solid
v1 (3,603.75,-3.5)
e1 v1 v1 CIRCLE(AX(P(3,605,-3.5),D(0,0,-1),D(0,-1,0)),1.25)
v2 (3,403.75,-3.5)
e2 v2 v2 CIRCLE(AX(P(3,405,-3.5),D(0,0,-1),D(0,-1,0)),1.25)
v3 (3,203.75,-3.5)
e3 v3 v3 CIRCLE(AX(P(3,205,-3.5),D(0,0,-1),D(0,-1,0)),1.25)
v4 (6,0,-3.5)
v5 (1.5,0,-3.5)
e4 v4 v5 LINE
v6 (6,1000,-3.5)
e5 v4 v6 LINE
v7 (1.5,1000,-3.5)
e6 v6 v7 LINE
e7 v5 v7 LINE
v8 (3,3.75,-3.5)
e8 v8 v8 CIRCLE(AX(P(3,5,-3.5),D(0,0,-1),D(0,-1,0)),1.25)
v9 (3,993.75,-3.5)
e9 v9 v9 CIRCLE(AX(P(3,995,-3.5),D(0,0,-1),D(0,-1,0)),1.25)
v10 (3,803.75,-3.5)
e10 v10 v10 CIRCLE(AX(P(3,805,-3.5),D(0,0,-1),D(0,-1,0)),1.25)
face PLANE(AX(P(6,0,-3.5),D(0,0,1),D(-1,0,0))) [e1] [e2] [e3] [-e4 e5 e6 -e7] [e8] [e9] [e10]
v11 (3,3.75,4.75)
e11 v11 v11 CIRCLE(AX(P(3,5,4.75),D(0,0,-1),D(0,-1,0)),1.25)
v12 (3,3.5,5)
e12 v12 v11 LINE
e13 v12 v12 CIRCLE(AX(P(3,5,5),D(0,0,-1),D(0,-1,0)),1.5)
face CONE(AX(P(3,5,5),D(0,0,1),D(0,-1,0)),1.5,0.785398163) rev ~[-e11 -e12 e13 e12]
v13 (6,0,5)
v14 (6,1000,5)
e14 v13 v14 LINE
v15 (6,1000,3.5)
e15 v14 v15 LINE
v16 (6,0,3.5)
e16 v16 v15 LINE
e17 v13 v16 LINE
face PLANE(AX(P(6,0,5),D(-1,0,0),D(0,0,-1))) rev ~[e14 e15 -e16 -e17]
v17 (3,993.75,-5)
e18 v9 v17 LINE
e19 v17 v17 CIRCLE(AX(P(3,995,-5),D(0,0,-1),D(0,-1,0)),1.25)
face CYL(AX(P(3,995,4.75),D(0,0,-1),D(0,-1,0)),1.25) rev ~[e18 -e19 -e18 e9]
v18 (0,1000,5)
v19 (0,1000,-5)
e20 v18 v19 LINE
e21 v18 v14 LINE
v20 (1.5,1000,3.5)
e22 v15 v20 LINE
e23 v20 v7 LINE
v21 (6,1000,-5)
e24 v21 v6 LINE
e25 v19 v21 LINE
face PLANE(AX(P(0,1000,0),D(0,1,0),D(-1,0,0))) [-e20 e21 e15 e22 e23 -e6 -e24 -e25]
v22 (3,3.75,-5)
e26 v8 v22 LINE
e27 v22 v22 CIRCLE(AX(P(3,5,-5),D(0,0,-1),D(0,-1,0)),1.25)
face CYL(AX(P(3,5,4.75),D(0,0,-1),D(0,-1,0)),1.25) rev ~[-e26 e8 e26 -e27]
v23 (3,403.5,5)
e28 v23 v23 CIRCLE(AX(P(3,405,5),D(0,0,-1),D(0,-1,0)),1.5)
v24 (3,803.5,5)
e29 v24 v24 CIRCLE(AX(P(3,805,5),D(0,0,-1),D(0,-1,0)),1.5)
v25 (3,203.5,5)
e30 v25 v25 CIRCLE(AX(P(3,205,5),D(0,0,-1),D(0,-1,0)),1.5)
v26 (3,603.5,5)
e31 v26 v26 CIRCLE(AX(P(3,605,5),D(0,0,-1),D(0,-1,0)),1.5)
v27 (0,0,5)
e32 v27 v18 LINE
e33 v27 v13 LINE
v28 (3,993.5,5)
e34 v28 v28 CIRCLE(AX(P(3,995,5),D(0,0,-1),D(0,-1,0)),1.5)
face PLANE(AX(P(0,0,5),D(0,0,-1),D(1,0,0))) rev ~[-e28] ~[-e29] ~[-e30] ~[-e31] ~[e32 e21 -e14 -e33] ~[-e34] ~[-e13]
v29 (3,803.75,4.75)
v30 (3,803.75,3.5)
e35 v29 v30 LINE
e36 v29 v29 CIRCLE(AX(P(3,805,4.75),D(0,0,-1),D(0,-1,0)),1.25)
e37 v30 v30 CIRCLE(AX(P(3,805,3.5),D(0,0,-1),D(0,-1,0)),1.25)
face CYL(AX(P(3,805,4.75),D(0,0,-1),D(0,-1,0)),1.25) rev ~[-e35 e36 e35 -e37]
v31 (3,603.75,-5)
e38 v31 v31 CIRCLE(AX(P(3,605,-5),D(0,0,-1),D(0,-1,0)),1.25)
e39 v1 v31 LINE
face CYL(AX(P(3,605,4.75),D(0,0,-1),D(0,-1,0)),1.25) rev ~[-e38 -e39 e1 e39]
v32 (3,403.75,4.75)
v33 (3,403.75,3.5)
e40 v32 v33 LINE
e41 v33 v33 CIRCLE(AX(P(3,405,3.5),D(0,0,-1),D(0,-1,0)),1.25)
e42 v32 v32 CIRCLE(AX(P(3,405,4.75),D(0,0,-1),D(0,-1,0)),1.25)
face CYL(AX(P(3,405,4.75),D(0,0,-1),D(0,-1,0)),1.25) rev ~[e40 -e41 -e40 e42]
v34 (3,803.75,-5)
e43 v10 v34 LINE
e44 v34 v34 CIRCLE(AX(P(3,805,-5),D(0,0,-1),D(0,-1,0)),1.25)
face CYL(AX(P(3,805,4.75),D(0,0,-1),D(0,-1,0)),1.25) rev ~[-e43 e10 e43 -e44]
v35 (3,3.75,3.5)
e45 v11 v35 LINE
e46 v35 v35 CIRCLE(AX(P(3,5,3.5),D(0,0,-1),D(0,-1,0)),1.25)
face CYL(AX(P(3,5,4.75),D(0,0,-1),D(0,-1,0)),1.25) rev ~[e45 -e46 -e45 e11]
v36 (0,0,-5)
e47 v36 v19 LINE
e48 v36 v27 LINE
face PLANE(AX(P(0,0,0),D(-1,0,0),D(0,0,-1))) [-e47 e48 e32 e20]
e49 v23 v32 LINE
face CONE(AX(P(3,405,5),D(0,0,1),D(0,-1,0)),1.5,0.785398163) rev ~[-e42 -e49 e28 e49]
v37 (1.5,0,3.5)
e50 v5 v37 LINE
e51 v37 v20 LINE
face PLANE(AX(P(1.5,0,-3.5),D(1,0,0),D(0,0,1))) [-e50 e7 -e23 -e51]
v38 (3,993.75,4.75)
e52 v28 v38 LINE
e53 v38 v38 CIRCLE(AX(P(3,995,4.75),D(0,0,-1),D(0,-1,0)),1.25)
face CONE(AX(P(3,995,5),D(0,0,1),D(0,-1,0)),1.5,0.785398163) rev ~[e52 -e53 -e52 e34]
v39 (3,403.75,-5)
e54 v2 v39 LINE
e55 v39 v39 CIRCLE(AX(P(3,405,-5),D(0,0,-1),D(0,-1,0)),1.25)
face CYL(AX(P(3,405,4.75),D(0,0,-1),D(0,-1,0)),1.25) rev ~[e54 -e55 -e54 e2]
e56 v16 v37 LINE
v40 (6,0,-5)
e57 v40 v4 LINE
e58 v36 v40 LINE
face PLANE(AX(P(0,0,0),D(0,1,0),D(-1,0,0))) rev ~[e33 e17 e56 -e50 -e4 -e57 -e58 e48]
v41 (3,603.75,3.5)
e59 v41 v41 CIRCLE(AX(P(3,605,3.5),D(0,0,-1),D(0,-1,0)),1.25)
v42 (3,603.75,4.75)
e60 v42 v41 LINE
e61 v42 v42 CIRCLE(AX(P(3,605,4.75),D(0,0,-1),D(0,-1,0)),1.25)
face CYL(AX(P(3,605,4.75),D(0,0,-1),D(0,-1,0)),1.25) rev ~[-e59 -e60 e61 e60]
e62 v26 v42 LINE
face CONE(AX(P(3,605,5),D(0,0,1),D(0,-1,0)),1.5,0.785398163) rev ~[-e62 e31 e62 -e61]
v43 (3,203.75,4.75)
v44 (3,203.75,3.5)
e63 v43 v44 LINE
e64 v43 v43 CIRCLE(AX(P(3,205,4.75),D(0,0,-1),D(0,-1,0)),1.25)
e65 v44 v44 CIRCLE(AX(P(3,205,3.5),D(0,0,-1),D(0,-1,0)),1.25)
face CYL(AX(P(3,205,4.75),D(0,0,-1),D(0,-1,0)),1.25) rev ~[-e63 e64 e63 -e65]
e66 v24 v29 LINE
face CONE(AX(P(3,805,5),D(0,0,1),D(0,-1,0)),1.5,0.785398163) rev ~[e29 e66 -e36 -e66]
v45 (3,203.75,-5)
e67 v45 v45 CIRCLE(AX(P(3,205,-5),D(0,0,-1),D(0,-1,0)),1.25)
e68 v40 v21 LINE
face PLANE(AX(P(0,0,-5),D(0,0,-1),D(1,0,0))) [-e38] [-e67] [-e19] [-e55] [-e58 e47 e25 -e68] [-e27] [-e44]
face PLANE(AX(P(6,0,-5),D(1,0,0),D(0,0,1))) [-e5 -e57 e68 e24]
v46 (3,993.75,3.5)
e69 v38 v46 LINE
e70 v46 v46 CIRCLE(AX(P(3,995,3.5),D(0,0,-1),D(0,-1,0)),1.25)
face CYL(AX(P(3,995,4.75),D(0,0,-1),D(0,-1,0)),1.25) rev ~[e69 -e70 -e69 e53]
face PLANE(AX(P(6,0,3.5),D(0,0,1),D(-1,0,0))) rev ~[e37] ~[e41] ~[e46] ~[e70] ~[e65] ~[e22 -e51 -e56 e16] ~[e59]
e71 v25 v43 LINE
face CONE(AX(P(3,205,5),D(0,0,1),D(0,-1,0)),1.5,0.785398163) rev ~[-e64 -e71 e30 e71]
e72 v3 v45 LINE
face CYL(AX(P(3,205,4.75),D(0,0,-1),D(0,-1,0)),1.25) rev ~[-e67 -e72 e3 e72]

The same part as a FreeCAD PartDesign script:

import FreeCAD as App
import Part
import Sketcher
Q = App.Units.Quantity

doc = App.newDocument("Part")
body = doc.addObject("PartDesign::Body", "Body")

# Sketch on XZ plane
sketch1 = doc.addObject("Sketcher::SketchObject", "Sketch")
body.addObject(sketch1)
sketch1.AttachmentSupport = (doc.XZ_Plane, [""])
sketch1.MapMode = "FlatFace"
sketch1.addGeometry([
    Part.LineSegment(App.Vector(0, -5, 0), App.Vector(0, 5, 0)),  # 0
    Part.LineSegment(App.Vector(0, 5, 0), App.Vector(6, 5, 0)),  # 1
    Part.LineSegment(App.Vector(6, 5, 0), App.Vector(6, 3.5, 0)),  # 2
    Part.LineSegment(App.Vector(6, 3.5, 0), App.Vector(1.5, 3.5, 0)),  # 3
    Part.LineSegment(App.Vector(1.5, 3.5, 0), App.Vector(1.5, -3.5, 0)),  # 4
    Part.LineSegment(App.Vector(1.5, -3.5, 0), App.Vector(6, -3.5, 0)),  # 5
    Part.LineSegment(App.Vector(6, -3.5, 0), App.Vector(6, -5, 0)),  # 6
    Part.LineSegment(App.Vector(6, -5, 0), App.Vector(0, -5, 0)),  # 7
], False)
sketch1.addConstraint([
    Sketcher.Constraint("Coincident", 0, 2, 1, 1),
    Sketcher.Constraint("Coincident", 1, 2, 2, 1),
    Sketcher.Constraint("Coincident", 2, 2, 3, 1),
    Sketcher.Constraint("Coincident", 3, 2, 4, 1),
    Sketcher.Constraint("Coincident", 4, 2, 5, 1),
    Sketcher.Constraint("Coincident", 5, 2, 6, 1),
    Sketcher.Constraint("Coincident", 6, 2, 7, 1),
    Sketcher.Constraint("Coincident", 7, 2, 0, 1),
    Sketcher.Constraint("Vertical", 0),
    Sketcher.Constraint("Horizontal", 1),
    Sketcher.Constraint("Vertical", 2),
    Sketcher.Constraint("Horizontal", 3),
    Sketcher.Constraint("Vertical", 4),
    Sketcher.Constraint("Horizontal", 5),
    Sketcher.Constraint("Vertical", 6),
    Sketcher.Constraint("Horizontal", 7),
    Sketcher.Constraint("Symmetric", 0, 2, 7, 2, -1, 1),
    Sketcher.Constraint("Symmetric", 2, 2, 5, 2, -1),
    Sketcher.Constraint("DistanceX", 1, 1, 1, 2, Q("6 mm")),
    Sketcher.Constraint("DistanceY", 2, 2, 2, 1, Q("1.5 mm")),
    Sketcher.Constraint("DistanceY", -1, 1, 0, 2, Q("5 mm")),
    Sketcher.Constraint("DistanceX", -1, 1, 3, 2, Q("1.5 mm")),
])
pad1 = doc.addObject("PartDesign::Pad", "Pad")
body.addObject(pad1)
pad1.Profile = sketch1
pad1.Length = 1000
pad1.Reversed = True

# Sketch on XY plane
sketch2 = doc.addObject("Sketcher::SketchObject", "Sketch001")
body.addObject(sketch2)
sketch2.AttachmentSupport = (doc.XY_Plane, [""])
sketch2.MapMode = "FlatFace"
sketch2.AttachmentOffset = App.Placement(App.Vector(0, 0, 5), App.Rotation())
sketch2.addGeometry([
    Part.Circle(App.Vector(3, 5, 0), App.Vector(0, 0, 1), 1.2),  # 0
    Part.Circle(App.Vector(3, 205, 0), App.Vector(0, 0, 1), 1.2),  # 1
    Part.Circle(App.Vector(3, 405, 0), App.Vector(0, 0, 1), 1.2),  # 2
    Part.Circle(App.Vector(3, 605, 0), App.Vector(0, 0, 1), 1.2),  # 3
    Part.Circle(App.Vector(3, 805, 0), App.Vector(0, 0, 1), 1.2),  # 4
    Part.Circle(App.Vector(3, 995, 0), App.Vector(0, 0, 1), 1.2),  # 5
], False)
sketch2.addConstraint([
    Sketcher.Constraint("Equal", 0, 1),
    Sketcher.Constraint("Equal", 1, 2),
    Sketcher.Constraint("Equal", 2, 3),
    Sketcher.Constraint("Equal", 3, 4),
    Sketcher.Constraint("Equal", 4, 5),
    Sketcher.Constraint("Vertical", 0, 3, 1, 3),
    Sketcher.Constraint("Vertical", 1, 3, 2, 3),
    Sketcher.Constraint("Vertical", 2, 3, 3, 3),
    Sketcher.Constraint("Vertical", 3, 3, 4, 3),
    Sketcher.Constraint("Vertical", 4, 3, 5, 3),
    Sketcher.Constraint("Diameter", 0, Q("2.5 mm")),
    Sketcher.Constraint("DistanceX", -1, 1, 0, 3, Q("3 mm")),
    Sketcher.Constraint("DistanceY", -1, 1, 0, 3, Q("5 mm")),
    Sketcher.Constraint("DistanceY", -1, 1, 1, 3, Q("205 mm")),
    Sketcher.Constraint("DistanceY", -1, 1, 2, 3, Q("405 mm")),
    Sketcher.Constraint("DistanceY", -1, 1, 3, 3, Q("605 mm")),
    Sketcher.Constraint("DistanceY", -1, 1, 4, 3, Q("805 mm")),
    Sketcher.Constraint("DistanceY", -1, 1, 5, 3, Q("995 mm")),
])
doc.recompute()
hole = doc.addObject("PartDesign::Hole", "Hole")
body.addObject(hole)
hole.Profile = sketch2
hole.ThreadType = "None"
hole.Diameter = 2.5
hole.DepthType = "ThroughAll"
hole.HoleCutType = "Countersink"
hole.HoleCutDiameter = 3
hole.HoleCutCountersinkAngle = 90

doc.recompute()
